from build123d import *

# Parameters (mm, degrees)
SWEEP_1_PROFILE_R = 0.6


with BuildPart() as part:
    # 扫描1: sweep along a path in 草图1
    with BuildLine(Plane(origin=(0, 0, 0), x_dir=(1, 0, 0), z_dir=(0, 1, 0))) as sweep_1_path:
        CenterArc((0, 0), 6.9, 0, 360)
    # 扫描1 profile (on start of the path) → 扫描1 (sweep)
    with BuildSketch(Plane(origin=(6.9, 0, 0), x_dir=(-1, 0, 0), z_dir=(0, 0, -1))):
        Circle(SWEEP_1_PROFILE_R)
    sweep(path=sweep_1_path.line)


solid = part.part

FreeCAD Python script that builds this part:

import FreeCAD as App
import Part
import Sketcher

doc = App.newDocument("Part")
body = doc.addObject("PartDesign::Body", "Body")

sketch1 = body.newObject("Sketcher::SketchObject", "Sketch")
sketch1.AttachmentSupport = (doc.getObject("XY_Plane"), [""])
sketch1.MapMode = "FlatFace"
sketch1.addGeometry(Part.Circle(App.Vector(6.9, 0, 0), App.Vector(0, 0, 1), 0.6), False)
sketch1.addConstraint(Sketcher.Constraint("PointOnObject", 0, 3, -1))
sketch1.addConstraint(Sketcher.Constraint("Diameter", 0, 1.2))
sketch1.addConstraint(Sketcher.Constraint("DistanceX", -1, 1, 0, 3, 6.9))

sketch2 = body.newObject("Sketcher::SketchObject", "Sketch001")
sketch2.AttachmentSupport = (doc.getObject("XZ_Plane"), [""])
sketch2.MapMode = "FlatFace"
sketch2.addGeometry(Part.Circle(App.Vector(0, 0, 0), App.Vector(0, 0, 1), 6.9), False)
sketch2.addConstraint(Sketcher.Constraint("Coincident", 0, 3, -1, 1))
sketch2.addConstraint(Sketcher.Constraint("Diameter", 0, 13.8))
doc.recompute()

additivepipe = body.newObject("PartDesign::AdditivePipe", "AdditivePipe")
additivepipe.Profile = sketch1
additivepipe.Spine = (sketch2, ["Edge1"])

doc.recompute()
